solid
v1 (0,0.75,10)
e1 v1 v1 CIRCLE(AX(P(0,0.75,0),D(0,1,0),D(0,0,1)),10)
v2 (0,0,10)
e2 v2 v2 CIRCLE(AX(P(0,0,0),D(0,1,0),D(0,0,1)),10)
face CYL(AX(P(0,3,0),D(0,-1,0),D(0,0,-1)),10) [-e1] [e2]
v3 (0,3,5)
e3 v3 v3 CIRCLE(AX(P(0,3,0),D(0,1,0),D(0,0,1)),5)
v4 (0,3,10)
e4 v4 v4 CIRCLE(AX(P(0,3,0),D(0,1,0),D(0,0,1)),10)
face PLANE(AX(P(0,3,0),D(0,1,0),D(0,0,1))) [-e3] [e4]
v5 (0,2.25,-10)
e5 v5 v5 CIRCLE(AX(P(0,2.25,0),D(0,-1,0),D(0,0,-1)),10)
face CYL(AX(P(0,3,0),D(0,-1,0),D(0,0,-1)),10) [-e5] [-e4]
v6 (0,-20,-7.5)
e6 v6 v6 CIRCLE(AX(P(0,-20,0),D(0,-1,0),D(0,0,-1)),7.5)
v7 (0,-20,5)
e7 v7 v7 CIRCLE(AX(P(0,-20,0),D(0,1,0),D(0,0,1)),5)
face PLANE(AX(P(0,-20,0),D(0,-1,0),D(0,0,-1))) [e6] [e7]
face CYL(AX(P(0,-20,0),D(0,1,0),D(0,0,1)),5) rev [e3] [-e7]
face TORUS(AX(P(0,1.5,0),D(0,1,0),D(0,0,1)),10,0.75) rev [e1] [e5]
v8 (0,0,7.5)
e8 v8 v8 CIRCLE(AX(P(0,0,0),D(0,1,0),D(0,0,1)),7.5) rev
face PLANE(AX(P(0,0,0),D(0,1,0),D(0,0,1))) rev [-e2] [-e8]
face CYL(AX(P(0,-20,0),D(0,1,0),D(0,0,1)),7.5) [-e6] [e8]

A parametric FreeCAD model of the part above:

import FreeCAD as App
import Part
import Sketcher
from FreeCAD import Vector
Q = App.Units.Quantity

doc = App.newDocument("Part")
body = doc.addObject("PartDesign::Body", "Body")

# Sketch on XZ plane
sketch1 = body.newObject("Sketcher::SketchObject", "Sketch")
sketch1.AttachmentSupport = (doc.getObject("XZ_Plane"), [""])
sketch1.MapMode = "FlatFace"
sketch1.addGeometry(Part.Circle(Vector(0, 0, 0), Vector(0, 0, 1), 10), False)
sketch1.addConstraint(Sketcher.Constraint("Coincident", 0, 3, -1, 1))
sketch1.addConstraint(Sketcher.Constraint("Diameter", 0, Q("20 mm")))
pad1 = body.newObject("PartDesign::Pad", "Pad")
pad1.Profile = sketch1
pad1.Length = 3
pad1.Reversed = True

# Sketch on YZ plane
sketch2 = body.newObject("Sketcher::SketchObject", "Sketch001")
sketch2.AttachmentSupport = (doc.getObject("YZ_Plane"), [""])
sketch2.MapMode = "FlatFace"
sketch2.addGeometry(Part.Circle(Vector(1.5, -10, 0), Vector(0, 0, 1), 0.75), False)
sketch2.addConstraint(Sketcher.Constraint("Diameter", 0, Q("1.5 mm")))
sketch2.addConstraint(Sketcher.Constraint("DistanceY", 0, 3, -1, 1, Q("10 mm")))
sketch2.addConstraint(Sketcher.Constraint("DistanceX", -1, 1, 0, 3, Q("1.5 mm")))
groove = body.newObject("PartDesign::Groove", "Groove")
groove.Profile = sketch2
groove.ReferenceAxis = (sketch2, ["H_Axis"])
groove.Angle = 360

# Sketch on XZ plane
sketch3 = body.newObject("Sketcher::SketchObject", "Sketch002")
sketch3.AttachmentSupport = (doc.getObject("XZ_Plane"), [""])
sketch3.MapMode = "FlatFace"
sketch3.addGeometry(Part.Circle(Vector(0, 0, 0), Vector(0, 0, 1), 7.5), False)
sketch3.addConstraint(Sketcher.Constraint("Coincident", 0, 3, -1, 1))
sketch3.addConstraint(Sketcher.Constraint("Diameter", 0, Q("15 mm")))
pad2 = body.newObject("PartDesign::Pad", "Pad001")
pad2.Profile = sketch3
pad2.Length = 20

# Sketch on XZ plane
sketch4 = body.newObject("Sketcher::SketchObject", "Sketch003")
sketch4.AttachmentSupport = (doc.getObject("XZ_Plane"), [""])
sketch4.MapMode = "FlatFace"
sketch4.AttachmentOffset = App.Placement(Vector(0, 0, -3), App.Rotation())
sketch4.addGeometry(Part.Circle(Vector(0, 0, 0), Vector(0, 0, 1), 5), False)
sketch4.addConstraint(Sketcher.Constraint("Coincident", 0, 3, -1, 1))
sketch4.addConstraint(Sketcher.Constraint("Diameter", 0, Q("10 mm")))
pocket1 = body.newObject("PartDesign::Pocket", "Pocket")
pocket1.Profile = sketch4
pocket1.Type = "ThroughAll"
pocket1.Reversed = True

doc.recompute()
